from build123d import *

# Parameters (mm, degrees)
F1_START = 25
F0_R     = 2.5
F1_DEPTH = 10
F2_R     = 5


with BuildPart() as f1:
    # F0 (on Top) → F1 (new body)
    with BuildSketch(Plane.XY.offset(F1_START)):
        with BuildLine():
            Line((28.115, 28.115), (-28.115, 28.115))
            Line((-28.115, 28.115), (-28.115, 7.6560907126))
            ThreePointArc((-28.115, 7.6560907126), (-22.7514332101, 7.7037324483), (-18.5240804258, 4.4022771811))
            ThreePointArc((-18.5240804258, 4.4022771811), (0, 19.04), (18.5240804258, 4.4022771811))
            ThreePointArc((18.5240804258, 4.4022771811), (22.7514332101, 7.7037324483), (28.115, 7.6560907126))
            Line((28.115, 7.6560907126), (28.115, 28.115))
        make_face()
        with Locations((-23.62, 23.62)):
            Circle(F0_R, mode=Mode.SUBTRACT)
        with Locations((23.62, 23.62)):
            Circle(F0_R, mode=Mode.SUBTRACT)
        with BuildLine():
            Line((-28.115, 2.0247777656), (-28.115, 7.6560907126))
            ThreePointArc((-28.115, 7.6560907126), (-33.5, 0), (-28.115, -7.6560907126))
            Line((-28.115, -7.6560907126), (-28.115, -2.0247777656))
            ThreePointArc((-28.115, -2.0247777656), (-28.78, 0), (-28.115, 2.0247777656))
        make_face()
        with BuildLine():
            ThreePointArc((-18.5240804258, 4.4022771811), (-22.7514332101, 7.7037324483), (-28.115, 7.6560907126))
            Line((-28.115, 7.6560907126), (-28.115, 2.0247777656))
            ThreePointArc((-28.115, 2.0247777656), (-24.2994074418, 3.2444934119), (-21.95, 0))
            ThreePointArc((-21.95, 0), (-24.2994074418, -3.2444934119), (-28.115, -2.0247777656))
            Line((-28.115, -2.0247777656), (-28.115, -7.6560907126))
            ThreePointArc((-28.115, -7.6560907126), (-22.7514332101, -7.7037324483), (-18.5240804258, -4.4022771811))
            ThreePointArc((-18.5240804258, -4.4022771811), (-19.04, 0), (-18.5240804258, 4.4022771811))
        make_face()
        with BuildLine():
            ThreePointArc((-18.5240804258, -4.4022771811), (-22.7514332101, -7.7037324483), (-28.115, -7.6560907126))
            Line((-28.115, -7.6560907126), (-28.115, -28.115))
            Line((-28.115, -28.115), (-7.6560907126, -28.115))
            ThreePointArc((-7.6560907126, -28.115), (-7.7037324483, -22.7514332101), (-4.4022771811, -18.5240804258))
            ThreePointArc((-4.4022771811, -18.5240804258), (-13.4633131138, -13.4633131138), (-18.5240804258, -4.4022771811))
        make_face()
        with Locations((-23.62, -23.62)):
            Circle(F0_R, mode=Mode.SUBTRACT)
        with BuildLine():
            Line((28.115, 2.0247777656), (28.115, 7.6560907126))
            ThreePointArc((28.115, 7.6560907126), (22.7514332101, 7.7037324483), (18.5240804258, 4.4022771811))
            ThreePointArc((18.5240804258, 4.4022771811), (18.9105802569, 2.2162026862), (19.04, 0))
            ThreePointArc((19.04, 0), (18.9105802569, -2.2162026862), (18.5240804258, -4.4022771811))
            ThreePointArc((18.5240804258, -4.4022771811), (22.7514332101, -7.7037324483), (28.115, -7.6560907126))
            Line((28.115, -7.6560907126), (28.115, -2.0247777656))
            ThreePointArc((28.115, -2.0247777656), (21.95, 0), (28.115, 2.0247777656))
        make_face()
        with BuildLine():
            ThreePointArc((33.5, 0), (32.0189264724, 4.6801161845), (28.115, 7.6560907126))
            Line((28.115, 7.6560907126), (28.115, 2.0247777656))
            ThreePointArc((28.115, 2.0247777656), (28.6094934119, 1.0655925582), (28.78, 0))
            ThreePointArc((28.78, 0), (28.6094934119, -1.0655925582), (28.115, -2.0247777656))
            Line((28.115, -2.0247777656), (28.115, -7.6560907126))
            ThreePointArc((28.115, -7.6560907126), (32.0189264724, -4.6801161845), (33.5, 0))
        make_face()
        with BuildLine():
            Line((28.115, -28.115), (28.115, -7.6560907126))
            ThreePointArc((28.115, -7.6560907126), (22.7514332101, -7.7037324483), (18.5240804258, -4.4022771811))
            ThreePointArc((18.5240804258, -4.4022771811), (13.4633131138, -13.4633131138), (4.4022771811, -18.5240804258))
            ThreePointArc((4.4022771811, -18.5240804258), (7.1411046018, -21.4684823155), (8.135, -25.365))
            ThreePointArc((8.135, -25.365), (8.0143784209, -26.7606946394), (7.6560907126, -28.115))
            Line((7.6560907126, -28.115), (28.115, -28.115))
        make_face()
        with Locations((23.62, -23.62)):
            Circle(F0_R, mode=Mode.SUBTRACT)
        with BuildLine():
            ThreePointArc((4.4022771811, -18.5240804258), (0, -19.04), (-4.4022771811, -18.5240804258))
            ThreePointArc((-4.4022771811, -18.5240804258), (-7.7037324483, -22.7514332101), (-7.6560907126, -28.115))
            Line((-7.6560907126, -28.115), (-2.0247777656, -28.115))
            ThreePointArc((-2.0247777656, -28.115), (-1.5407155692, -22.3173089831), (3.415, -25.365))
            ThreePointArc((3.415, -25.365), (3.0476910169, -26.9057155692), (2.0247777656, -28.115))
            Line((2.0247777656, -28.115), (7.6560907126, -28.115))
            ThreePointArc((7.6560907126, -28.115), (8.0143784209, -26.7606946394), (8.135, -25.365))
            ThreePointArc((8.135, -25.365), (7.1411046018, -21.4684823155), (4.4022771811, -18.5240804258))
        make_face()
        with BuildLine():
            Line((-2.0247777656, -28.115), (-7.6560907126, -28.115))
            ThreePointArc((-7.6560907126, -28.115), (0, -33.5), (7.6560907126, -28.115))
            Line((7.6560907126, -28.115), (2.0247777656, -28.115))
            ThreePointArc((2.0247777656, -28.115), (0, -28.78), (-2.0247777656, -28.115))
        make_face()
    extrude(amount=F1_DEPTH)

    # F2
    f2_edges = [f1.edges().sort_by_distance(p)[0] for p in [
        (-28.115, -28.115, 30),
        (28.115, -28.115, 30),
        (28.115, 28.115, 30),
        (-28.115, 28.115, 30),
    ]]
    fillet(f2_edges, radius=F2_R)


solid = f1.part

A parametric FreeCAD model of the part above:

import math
import FreeCAD as App
import Part
import Sketcher


def edges_at(feature, points):
    """Names of the edges that pass closest to the given points."""
    edges = feature.Shape.Edges
    near = lambda p: min(range(len(edges)), key=lambda i: edges[i].distToShape(Part.Vertex(*p))[0])
    return sorted({f"Edge{near(p) + 1}" for p in points})

doc = App.newDocument("Part")
body = doc.addObject("PartDesign::Body", "Body")

# Sketch on XY plane
sketch1 = body.newObject("Sketcher::SketchObject", "Sketch")
sketch1.AttachmentSupport = (doc.getObject("XY_Plane"), [""])
sketch1.MapMode = "FlatFace"
sketch1.AttachmentOffset = App.Placement(App.Vector(0, 0, 25), App.Rotation())
sketch1.addGeometry([
    Part.LineSegment(App.Vector(28.115, 28.115, 0), App.Vector(-28.115, 28.115, 0)),  # 0
    Part.LineSegment(App.Vector(-28.115, 28.115, 0), App.Vector(-28.115, 7.656091, 0)),  # 1
    Part.ArcOfCircle(Part.Circle(App.Vector(-25.365, 0, 0), App.Vector(0, 0, 1), 8.135), math.radians(109.757839), math.radians(250.242161)),  # 2
    Part.LineSegment(App.Vector(-28.115, -7.656091, 0), App.Vector(-28.115, -28.115, 0)),  # 3
    Part.LineSegment(App.Vector(-28.115, -28.115, 0), App.Vector(-7.656091, -28.115, 0)),  # 4
    Part.ArcOfCircle(Part.Circle(App.Vector(0, -25.365, 0), App.Vector(0, 0, 1), 8.135), math.radians(-160.242161), math.radians(-19.757839)),  # 5
    Part.LineSegment(App.Vector(7.656091, -28.115, 0), App.Vector(28.115, -28.115, 0)),  # 6
    Part.LineSegment(App.Vector(28.115, -28.115, 0), App.Vector(28.115, -7.656091, 0)),  # 7
    Part.ArcOfCircle(Part.Circle(App.Vector(25.365, 0, 0), App.Vector(0, 0, 1), 8.135), math.radians(-70.242161), math.radians(0)),  # 8
    Part.ArcOfCircle(Part.Circle(App.Vector(25.365, 0, 0), App.Vector(0, 0, 1), 8.135), math.radians(0), math.radians(70.242161)),  # 9
    Part.LineSegment(App.Vector(28.115, 7.656091, 0), App.Vector(28.115, 28.115, 0)),  # 10
    Part.ArcOfCircle(Part.Circle(App.Vector(0, -25.365, 0), App.Vector(0, 0, 1), 3.415), math.radians(0), math.radians(233.636422)),  # 11
    Part.ArcOfCircle(Part.Circle(App.Vector(0, -25.365, 0), App.Vector(0, 0, 1), 3.415), math.radians(-53.636422), math.radians(0)),  # 12
    Part.ArcOfCircle(Part.Circle(App.Vector(0, -25.365, 0), App.Vector(0, 0, 1), 3.415), math.radians(-126.363578), math.radians(-53.636422)),  # 13
    Part.ArcOfCircle(Part.Circle(App.Vector(0, 0, 0), App.Vector(0, 0, 1), 19.04), math.radians(-166.63156), math.radians(-103.36844)),  # 14
    Part.ArcOfCircle(Part.Circle(App.Vector(0, 0, 0), App.Vector(0, 0, 1), 19.04), math.radians(166.63156), math.radians(193.36844)),  # 15
    Part.ArcOfCircle(Part.Circle(App.Vector(0, 0, 0), App.Vector(0, 0, 1), 19.04), math.radians(13.36844), math.radians(166.63156)),  # 16
    Part.ArcOfCircle(Part.Circle(App.Vector(0, 0, 0), App.Vector(0, 0, 1), 19.04), math.radians(0), math.radians(13.36844)),  # 17
    Part.ArcOfCircle(Part.Circle(App.Vector(0, 0, 0), App.Vector(0, 0, 1), 19.04), math.radians(-13.36844), math.radians(0)),  # 18
    Part.ArcOfCircle(Part.Circle(App.Vector(0, 0, 0), App.Vector(0, 0, 1), 19.04), math.radians(-76.63156), math.radians(-13.36844)),  # 19
    Part.ArcOfCircle(Part.Circle(App.Vector(0, 0, 0), App.Vector(0, 0, 1), 19.04), math.radians(-103.36844), math.radians(-76.63156)),  # 20
    Part.Circle(App.Vector(-23.62, -23.62, 0), App.Vector(0, 0, 1), 2.5),  # 21
    Part.Circle(App.Vector(23.62, -23.62, 0), App.Vector(0, 0, 1), 2.5),  # 22
    Part.ArcOfCircle(Part.Circle(App.Vector(-25.365, 0, 0), App.Vector(0, 0, 1), 3.415), math.radians(0), math.radians(143.636422)),  # 23
    Part.ArcOfCircle(Part.Circle(App.Vector(-25.365, 0, 0), App.Vector(0, 0, 1), 3.415), math.radians(-143.636422), math.radians(0)),  # 24
    Part.ArcOfCircle(Part.Circle(App.Vector(-25.365, 0, 0), App.Vector(0, 0, 1), 3.415), math.radians(143.636422), math.radians(216.363578)),  # 25
    Part.Circle(App.Vector(-23.62, 23.62, 0), App.Vector(0, 0, 1), 2.5),  # 26
    Part.ArcOfCircle(Part.Circle(App.Vector(25.365, 0, 0), App.Vector(0, 0, 1), 3.415), math.radians(36.363578), math.radians(323.636422)),  # 27
    Part.ArcOfCircle(Part.Circle(App.Vector(25.365, 0, 0), App.Vector(0, 0, 1), 3.415), math.radians(0), math.radians(36.363578)),  # 28
    Part.ArcOfCircle(Part.Circle(App.Vector(25.365, 0, 0), App.Vector(0, 0, 1), 3.415), math.radians(-36.363578), math.radians(0)),  # 29
    Part.Circle(App.Vector(23.62, 23.62, 0), App.Vector(0, 0, 1), 2.5),  # 30
], False)
sketch1.addConstraint([
    Sketcher.Constraint("Coincident", 0, 2, 1, 1),
    Sketcher.Constraint("Coincident", 1, 2, 2, 1),
    Sketcher.Constraint("Coincident", 2, 2, 3, 1),
    Sketcher.Constraint("Coincident", 3, 2, 4, 1),
    Sketcher.Constraint("Coincident", 4, 2, 5, 1),
    Sketcher.Constraint("Coincident", 5, 2, 6, 1),
    Sketcher.Constraint("Coincident", 6, 2, 7, 1),
    Sketcher.Constraint("Coincident", 7, 2, 8, 1),
    Sketcher.Constraint("Tangent", 8, 2, 9, 1),
    Sketcher.Constraint("Coincident", 9, 2, 10, 1),
    Sketcher.Constraint("Coincident", 10, 2, 0, 1),
    Sketcher.Constraint("Tangent", 11, 1, 12, 2),
    Sketcher.Constraint("Tangent", 12, 1, 13, 2),
    Sketcher.Constraint("Tangent", 13, 1, 11, 2),
    Sketcher.Constraint("Tangent", 14, 1, 15, 2),
    Sketcher.Constraint("Tangent", 15, 1, 16, 2),
    Sketcher.Constraint("Tangent", 16, 1, 17, 2),
    Sketcher.Constraint("Tangent", 17, 1, 18, 2),
    Sketcher.Constraint("Tangent", 18, 1, 19, 2),
    Sketcher.Constraint("Tangent", 19, 1, 20, 2),
    Sketcher.Constraint("Tangent", 20, 1, 14, 2),
    Sketcher.Constraint("Tangent", 23, 1, 24, 2),
    Sketcher.Constraint("Tangent", 24, 1, 25, 2),
    Sketcher.Constraint("Tangent", 25, 1, 23, 2),
    Sketcher.Constraint("Tangent", 27, 1, 28, 2),
    Sketcher.Constraint("Tangent", 28, 1, 29, 2),
    Sketcher.Constraint("Tangent", 29, 1, 27, 2),
    Sketcher.Constraint("Horizontal", 0),
    Sketcher.Constraint("Vertical", 1),
    Sketcher.Constraint("Vertical", 3),
    Sketcher.Constraint("Horizontal", 4),
    Sketcher.Constraint("Horizontal", 6),
    Sketcher.Constraint("Vertical", 7),
    Sketcher.Constraint("Vertical", 10),
    Sketcher.Constraint("Coincident", 14, 3, -1, 1),
    Sketcher.Constraint("Coincident", 16, 3, -1, 1),
    Sketcher.Constraint("Coincident", 18, 3, -1, 1),
    Sketcher.Constraint("Coincident", 11, 3, 5, 3),
    Sketcher.Constraint("Coincident", 23, 3, 2, 3),
    Sketcher.Constraint("Coincident", 27, 3, 8, 3),
    Sketcher.Constraint("Equal", 2, 5),
    Sketcher.Constraint("Equal", 5, 8),
    Sketcher.Constraint("Equal", 8, 9),
    Sketcher.Constraint("Equal", 21, 22),
    Sketcher.Constraint("Equal", 13, 23),
    Sketcher.Constraint("Equal", 22, 26),
    Sketcher.Constraint("Equal", 25, 27),
    Sketcher.Constraint("Equal", 26, 30),
    Sketcher.Constraint("Symmetric", 2, 3, 8, 3, -1, 1),
    Sketcher.Constraint("Symmetric", 22, 3, 26, 3, -1, 1),
    Sketcher.Constraint("Symmetric", 21, 3, 30, 3, -1, 1),
    Sketcher.Constraint("Symmetric", 0, 2, 6, 2, -1, 1),
    Sketcher.Constraint("Symmetric", 3, 2, 10, 2, -1, 1),
    Sketcher.Constraint("Symmetric", 21, 3, 22, 3, -2),
    Sketcher.Constraint("Symmetric", 2, 2, 7, 2, -2),
    Sketcher.Constraint("Symmetric", 12, 1, 13, 1, -2),
    Sketcher.Constraint("PointOnObject", 8, 2, -1),
    Sketcher.Constraint("PointOnObject", 17, 1, -1),
    Sketcher.Constraint("PointOnObject", 23, 1, -1),
    Sketcher.Constraint("PointOnObject", 28, 1, -1),
    Sketcher.Constraint("Horizontal", 13, 3, 11, 1),
    Sketcher.Constraint("Horizontal", 6, 2, 12, 1),
    Sketcher.Constraint("Horizontal", 15, 1, 16, 1),
    Sketcher.Constraint("Horizontal", 14, 1, 18, 1),
    Sketcher.Constraint("Horizontal", 19, 1, 20, 1),
    Sketcher.Constraint("Horizontal", 25, 1, 27, 1),
    Sketcher.Constraint("Horizontal", 24, 1, 29, 1),
    Sketcher.Constraint("Vertical", 14, 1, 15, 1),
    Sketcher.Constraint("Vertical", 3, 2, 24, 1),
    Sketcher.Constraint("Vertical", 24, 1, 25, 1),
    Sketcher.Constraint("Equal", 6, 1),
    Sketcher.Constraint("Diameter", 21, 5.0),
    Sketcher.Constraint("Radius", 14, 19.04),
    Sketcher.Constraint("Radius", 2, 8.135),
    Sketcher.Constraint("Radius", 11, 3.415),
    Sketcher.Constraint("DistanceX", 0, 2, 0, 1, 56.23),
    Sketcher.Constraint("DistanceX", -1, 1, 8, 2, 33.5),
    Sketcher.Constraint("DistanceX", 21, 3, -1, 1, 23.62),
    Sketcher.Constraint("DistanceY", 21, 3, -1, 1, 23.62),
    Sketcher.Constraint("DistanceY", 3, 2, 5, 3, 2.75),
    Sketcher.Constraint("DistanceX", 14, 1, -1, 1, 18.52408),
    Sketcher.Constraint("DistanceY", 19, 1, -1, 1, 18.52408),
])
pad1 = body.newObject("PartDesign::Pad", "Pad")
pad1.Profile = sketch1
pad1.Length = 10
doc.recompute()

fillet = body.newObject("PartDesign::Fillet", "Fillet")
fillet.Base = (pad1, edges_at(pad1, [
    (-28.115, -28.115, 30),
    (28.115, -28.115, 30),
    (28.115, 28.115, 30),
    (-28.115, 28.115, 30),
]))
fillet.Radius = 5

doc.recompute()
